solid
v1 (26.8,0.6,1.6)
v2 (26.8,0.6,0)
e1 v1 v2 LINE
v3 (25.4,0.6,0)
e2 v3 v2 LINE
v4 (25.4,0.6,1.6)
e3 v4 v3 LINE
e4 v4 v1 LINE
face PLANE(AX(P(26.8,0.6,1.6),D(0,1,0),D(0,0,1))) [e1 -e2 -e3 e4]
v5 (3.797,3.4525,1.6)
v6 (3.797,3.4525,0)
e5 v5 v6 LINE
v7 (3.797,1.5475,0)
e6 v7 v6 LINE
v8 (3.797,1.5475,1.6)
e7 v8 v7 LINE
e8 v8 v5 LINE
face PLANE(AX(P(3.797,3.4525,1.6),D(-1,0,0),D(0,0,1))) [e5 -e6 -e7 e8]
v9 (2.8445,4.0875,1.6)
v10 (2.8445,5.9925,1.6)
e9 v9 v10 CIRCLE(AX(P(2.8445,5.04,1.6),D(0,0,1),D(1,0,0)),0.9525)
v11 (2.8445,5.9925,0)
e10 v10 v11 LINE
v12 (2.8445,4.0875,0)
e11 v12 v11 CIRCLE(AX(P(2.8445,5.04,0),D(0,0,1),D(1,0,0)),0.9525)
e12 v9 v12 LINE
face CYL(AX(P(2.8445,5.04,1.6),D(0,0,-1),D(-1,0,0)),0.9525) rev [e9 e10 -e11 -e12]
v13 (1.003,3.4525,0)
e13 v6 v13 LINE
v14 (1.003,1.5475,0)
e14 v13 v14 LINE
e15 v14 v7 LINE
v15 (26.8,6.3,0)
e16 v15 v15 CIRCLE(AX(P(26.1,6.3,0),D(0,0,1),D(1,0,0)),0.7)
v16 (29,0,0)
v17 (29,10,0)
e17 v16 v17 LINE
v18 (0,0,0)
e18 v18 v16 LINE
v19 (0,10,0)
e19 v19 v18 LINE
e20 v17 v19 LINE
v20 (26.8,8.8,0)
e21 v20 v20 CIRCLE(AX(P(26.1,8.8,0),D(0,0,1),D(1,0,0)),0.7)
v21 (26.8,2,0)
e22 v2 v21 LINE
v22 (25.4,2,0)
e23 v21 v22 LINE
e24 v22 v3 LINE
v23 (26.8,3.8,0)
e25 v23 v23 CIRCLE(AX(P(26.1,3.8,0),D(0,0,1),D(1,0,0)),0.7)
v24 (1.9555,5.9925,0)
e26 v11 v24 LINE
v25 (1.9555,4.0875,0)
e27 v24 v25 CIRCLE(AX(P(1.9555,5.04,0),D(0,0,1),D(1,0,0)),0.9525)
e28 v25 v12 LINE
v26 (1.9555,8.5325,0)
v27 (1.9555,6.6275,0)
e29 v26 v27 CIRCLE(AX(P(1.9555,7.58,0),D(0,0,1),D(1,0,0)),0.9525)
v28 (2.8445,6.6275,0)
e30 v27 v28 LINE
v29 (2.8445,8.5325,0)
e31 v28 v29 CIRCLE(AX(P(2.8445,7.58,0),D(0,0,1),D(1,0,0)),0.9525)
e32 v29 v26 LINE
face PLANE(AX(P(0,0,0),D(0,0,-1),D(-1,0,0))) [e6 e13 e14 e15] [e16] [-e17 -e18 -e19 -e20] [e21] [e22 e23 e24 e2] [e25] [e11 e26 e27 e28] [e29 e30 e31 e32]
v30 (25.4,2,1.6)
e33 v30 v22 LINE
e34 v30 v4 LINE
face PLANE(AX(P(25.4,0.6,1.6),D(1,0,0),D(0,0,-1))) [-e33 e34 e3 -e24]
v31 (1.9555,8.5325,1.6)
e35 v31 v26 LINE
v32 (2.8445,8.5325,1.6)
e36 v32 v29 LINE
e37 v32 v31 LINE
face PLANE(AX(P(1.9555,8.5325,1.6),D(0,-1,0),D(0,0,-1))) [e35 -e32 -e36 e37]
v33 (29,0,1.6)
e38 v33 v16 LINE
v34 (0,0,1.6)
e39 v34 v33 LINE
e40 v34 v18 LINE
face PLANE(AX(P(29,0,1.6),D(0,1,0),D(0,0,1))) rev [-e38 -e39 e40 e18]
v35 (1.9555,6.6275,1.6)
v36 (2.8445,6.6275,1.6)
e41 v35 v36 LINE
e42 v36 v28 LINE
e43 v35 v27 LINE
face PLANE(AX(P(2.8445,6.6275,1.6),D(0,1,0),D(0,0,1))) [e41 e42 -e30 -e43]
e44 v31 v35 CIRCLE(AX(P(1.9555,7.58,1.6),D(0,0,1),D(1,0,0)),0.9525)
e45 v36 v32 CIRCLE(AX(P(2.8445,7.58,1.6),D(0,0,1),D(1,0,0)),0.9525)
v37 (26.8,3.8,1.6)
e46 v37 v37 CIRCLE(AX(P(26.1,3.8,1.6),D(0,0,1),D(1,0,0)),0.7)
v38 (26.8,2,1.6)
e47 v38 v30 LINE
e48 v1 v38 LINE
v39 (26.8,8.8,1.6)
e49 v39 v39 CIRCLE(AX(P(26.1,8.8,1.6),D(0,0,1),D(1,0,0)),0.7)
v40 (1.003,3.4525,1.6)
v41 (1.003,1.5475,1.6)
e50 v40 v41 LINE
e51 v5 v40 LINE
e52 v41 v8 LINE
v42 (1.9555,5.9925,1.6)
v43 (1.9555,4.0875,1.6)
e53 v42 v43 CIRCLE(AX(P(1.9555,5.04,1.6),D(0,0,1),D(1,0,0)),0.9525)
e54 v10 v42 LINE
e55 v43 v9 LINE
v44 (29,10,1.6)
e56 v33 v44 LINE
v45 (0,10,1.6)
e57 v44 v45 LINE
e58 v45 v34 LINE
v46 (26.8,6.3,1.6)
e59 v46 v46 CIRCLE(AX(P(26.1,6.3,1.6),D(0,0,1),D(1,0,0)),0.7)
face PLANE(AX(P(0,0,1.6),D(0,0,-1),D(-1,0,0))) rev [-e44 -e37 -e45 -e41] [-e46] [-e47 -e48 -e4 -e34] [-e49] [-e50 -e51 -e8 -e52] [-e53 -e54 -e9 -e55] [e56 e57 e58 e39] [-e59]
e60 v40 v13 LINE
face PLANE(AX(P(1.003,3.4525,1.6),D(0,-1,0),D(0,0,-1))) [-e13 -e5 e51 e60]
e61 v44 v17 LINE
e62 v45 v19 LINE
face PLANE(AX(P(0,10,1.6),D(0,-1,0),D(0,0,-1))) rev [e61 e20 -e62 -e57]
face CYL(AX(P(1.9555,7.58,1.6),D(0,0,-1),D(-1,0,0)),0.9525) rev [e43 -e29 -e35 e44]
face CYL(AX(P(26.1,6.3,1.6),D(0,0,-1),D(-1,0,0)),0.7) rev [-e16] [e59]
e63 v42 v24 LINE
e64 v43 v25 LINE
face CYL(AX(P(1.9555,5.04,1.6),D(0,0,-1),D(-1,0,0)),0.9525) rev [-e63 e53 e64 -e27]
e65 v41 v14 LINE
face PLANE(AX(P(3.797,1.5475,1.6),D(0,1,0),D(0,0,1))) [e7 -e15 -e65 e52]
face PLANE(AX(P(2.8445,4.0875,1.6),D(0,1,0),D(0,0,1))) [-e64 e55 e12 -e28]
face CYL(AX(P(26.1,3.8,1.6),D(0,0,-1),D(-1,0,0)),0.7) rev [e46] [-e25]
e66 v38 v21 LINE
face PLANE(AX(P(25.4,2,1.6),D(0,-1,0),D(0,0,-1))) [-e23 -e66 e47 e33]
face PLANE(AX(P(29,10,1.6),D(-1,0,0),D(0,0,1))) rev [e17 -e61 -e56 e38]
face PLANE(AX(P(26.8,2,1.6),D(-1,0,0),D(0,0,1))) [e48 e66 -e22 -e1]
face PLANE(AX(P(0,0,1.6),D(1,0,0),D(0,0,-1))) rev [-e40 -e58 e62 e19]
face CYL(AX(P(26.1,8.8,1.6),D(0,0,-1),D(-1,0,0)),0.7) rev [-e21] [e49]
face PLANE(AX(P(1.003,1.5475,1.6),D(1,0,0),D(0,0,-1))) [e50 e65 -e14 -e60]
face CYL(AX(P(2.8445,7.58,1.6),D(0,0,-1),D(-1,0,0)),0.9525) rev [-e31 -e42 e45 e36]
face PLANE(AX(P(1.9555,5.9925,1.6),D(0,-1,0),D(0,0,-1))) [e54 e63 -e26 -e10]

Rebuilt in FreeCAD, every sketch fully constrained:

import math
import FreeCAD as App
import Part
import Sketcher


def add_polygon(sketch, points):
    """Adds a closed chain of lines whose ends are joined by coincident constraints."""
    first, n = sketch.GeometryCount, len(points)
    for a, b in zip(points, points[1:] + points[:1]):
        sketch.addGeometry(Part.LineSegment(App.Vector(*a, 0), App.Vector(*b, 0)), False)
    for i in range(n):
        sketch.addConstraint(Sketcher.Constraint("Coincident", first + i, 2, first + (i + 1) % n, 1))

doc = App.newDocument("Part")
body = doc.addObject("PartDesign::Body", "Body")

sketch1 = body.newObject("Sketcher::SketchObject", "Sketch")
sketch1.AttachmentSupport = (doc.getObject("XY_Plane"), [""])
sketch1.MapMode = "FlatFace"
add_polygon(sketch1, [(0, 10), (0, 0), (29, 0), (29, 10)])
add_polygon(sketch1, [(3.8, 1.5), (1, 1.5), (1, 3.5), (3.8, 3.5)])
sketch1.addGeometry(Part.ArcOfCircle(Part.Circle(App.Vector(2, 5, 0), App.Vector(0, 0, 1), 1), math.radians(90), math.radians(270)), False)
sketch1.addGeometry(Part.LineSegment(App.Vector(2, 6, 0), App.Vector(2.8, 6, 0)), False)
sketch1.addGeometry(Part.ArcOfCircle(Part.Circle(App.Vector(2.8, 5, 0), App.Vector(0, 0, 1), 1), math.radians(-90), math.radians(90)), False)
sketch1.addGeometry(Part.LineSegment(App.Vector(2.8, 4.1, 0), App.Vector(2, 4.1, 0)), False)
add_polygon(sketch1, [(26.8, 0.6), (25.4, 0.6), (25.4, 2), (26.8, 2)])
sketch1.addGeometry(Part.Circle(App.Vector(26.1, 3.8, 0), App.Vector(0, 0, 1), 0.7), False)
sketch1.addGeometry(Part.ArcOfCircle(Part.Circle(App.Vector(2, 7.6, 0), App.Vector(0, 0, 1), 1), math.radians(90), math.radians(270)), False)
sketch1.addGeometry(Part.LineSegment(App.Vector(2, 8.5, 0), App.Vector(2.8, 8.5, 0)), False)
sketch1.addGeometry(Part.ArcOfCircle(Part.Circle(App.Vector(2.8, 7.6, 0), App.Vector(0, 0, 1), 1), math.radians(-90), math.radians(90)), False)
sketch1.addGeometry(Part.LineSegment(App.Vector(2.8, 6.6, 0), App.Vector(2, 6.6, 0)), False)
sketch1.addGeometry(Part.Circle(App.Vector(26.1, 6.3, 0), App.Vector(0, 0, 1), 0.7), False)
sketch1.addGeometry(Part.Circle(App.Vector(26.1, 8.8, 0), App.Vector(0, 0, 1), 0.7), False)
sketch1.addConstraint(Sketcher.Constraint("Tangent", 8, 1, 9, 1))
sketch1.addConstraint(Sketcher.Constraint("Tangent", 9, 2, 10, 2))
sketch1.addConstraint(Sketcher.Constraint("Tangent", 10, 1, 11, 1))
sketch1.addConstraint(Sketcher.Constraint("Tangent", 11, 2, 8, 2))
sketch1.addConstraint(Sketcher.Constraint("Tangent", 17, 1, 18, 1))
sketch1.addConstraint(Sketcher.Constraint("Tangent", 18, 2, 19, 2))
sketch1.addConstraint(Sketcher.Constraint("Tangent", 19, 1, 20, 1))
sketch1.addConstraint(Sketcher.Constraint("Tangent", 20, 2, 17, 2))
sketch1.addConstraint(Sketcher.Constraint("Vertical", 0))
sketch1.addConstraint(Sketcher.Constraint("Horizontal", 1))
sketch1.addConstraint(Sketcher.Constraint("Vertical", 2))
sketch1.addConstraint(Sketcher.Constraint("Horizontal", 3))
sketch1.addConstraint(Sketcher.Constraint("Horizontal", 4))
sketch1.addConstraint(Sketcher.Constraint("Vertical", 5))
sketch1.addConstraint(Sketcher.Constraint("Horizontal", 6))
sketch1.addConstraint(Sketcher.Constraint("Vertical", 7))
sketch1.addConstraint(Sketcher.Constraint("Horizontal", 9))
sketch1.addConstraint(Sketcher.Constraint("Horizontal", 11))
sketch1.addConstraint(Sketcher.Constraint("Horizontal", 12))
sketch1.addConstraint(Sketcher.Constraint("Vertical", 13))
sketch1.addConstraint(Sketcher.Constraint("Horizontal", 14))
sketch1.addConstraint(Sketcher.Constraint("Vertical", 15))
sketch1.addConstraint(Sketcher.Constraint("Horizontal", 18))
sketch1.addConstraint(Sketcher.Constraint("Horizontal", 20))
sketch1.addConstraint(Sketcher.Constraint("Coincident", 0, 2, -1, 1))
sketch1.addConstraint(Sketcher.Constraint("Equal", 10, 17))
sketch1.addConstraint(Sketcher.Constraint("Equal", 16, 21))
sketch1.addConstraint(Sketcher.Constraint("Equal", 21, 22))
sketch1.addConstraint(Sketcher.Constraint("Vertical", 8, 3, 17, 3))
sketch1.addConstraint(Sketcher.Constraint("Vertical", 10, 3, 19, 3))
sketch1.addConstraint(Sketcher.Constraint("Vertical", 16, 3, 21, 3))
sketch1.addConstraint(Sketcher.Constraint("Vertical", 21, 3, 22, 3))
sketch1.addConstraint(Sketcher.Constraint("Equal", 14, 13))
sketch1.addConstraint(Sketcher.Constraint("Diameter", 16, 1.4))
sketch1.addConstraint(Sketcher.Constraint("DistanceX", 1, 1, 1, 2, 29.0))
sketch1.addConstraint(Sketcher.Constraint("DistanceY", 0, 2, 0, 1, 10.0))
sketch1.addConstraint(Sketcher.Constraint("DistanceX", 12, 2, 12, 1, 1.4))
sketch1.addConstraint(Sketcher.Constraint("DistanceY", -1, 1, 13, 2, 2.0))
sketch1.addConstraint(Sketcher.Constraint("DistanceY", 16, 3, 22, 3, 5.0))
sketch1.addConstraint(Sketcher.Constraint("DistanceX", -1, 1, 16, 3, 26.1))
sketch1.addConstraint(Sketcher.Constraint("DistanceY", -1, 1, 16, 3, 3.8))
sketch1.addConstraint(Sketcher.Constraint("DistanceY", -1, 1, 21, 3, 6.3))
sketch1.addConstraint(Sketcher.Constraint("DistanceX", -1, 1, 12, 2, 25.4))
sketch1.addConstraint(Sketcher.Constraint("Radius", 8, 0.9525))
sketch1.addConstraint(Sketcher.Constraint("DistanceX", 4, 2, 4, 1, 2.794))
sketch1.addConstraint(Sketcher.Constraint("DistanceX", 9, 1, 9, 2, 0.889))
sketch1.addConstraint(Sketcher.Constraint("DistanceY", 5, 1, 5, 2, 1.905))
sketch1.addConstraint(Sketcher.Constraint("DistanceY", -1, 1, 8, 3, 5.04))
sketch1.addConstraint(Sketcher.Constraint("DistanceY", -1, 1, 17, 3, 7.58))
sketch1.addConstraint(Sketcher.Constraint("DistanceY", 5, 2, 8, 1, 2.54))
sketch1.addConstraint(Sketcher.Constraint("DistanceX", -1, 1, 4, 2, 1.003))
sketch1.addConstraint(Sketcher.Constraint("DistanceX", -1, 1, 8, 3, 1.9555))
pad1 = body.newObject("PartDesign::Pad", "Pad")
pad1.Profile = sketch1
pad1.Length = 1.6

doc.recompute()
